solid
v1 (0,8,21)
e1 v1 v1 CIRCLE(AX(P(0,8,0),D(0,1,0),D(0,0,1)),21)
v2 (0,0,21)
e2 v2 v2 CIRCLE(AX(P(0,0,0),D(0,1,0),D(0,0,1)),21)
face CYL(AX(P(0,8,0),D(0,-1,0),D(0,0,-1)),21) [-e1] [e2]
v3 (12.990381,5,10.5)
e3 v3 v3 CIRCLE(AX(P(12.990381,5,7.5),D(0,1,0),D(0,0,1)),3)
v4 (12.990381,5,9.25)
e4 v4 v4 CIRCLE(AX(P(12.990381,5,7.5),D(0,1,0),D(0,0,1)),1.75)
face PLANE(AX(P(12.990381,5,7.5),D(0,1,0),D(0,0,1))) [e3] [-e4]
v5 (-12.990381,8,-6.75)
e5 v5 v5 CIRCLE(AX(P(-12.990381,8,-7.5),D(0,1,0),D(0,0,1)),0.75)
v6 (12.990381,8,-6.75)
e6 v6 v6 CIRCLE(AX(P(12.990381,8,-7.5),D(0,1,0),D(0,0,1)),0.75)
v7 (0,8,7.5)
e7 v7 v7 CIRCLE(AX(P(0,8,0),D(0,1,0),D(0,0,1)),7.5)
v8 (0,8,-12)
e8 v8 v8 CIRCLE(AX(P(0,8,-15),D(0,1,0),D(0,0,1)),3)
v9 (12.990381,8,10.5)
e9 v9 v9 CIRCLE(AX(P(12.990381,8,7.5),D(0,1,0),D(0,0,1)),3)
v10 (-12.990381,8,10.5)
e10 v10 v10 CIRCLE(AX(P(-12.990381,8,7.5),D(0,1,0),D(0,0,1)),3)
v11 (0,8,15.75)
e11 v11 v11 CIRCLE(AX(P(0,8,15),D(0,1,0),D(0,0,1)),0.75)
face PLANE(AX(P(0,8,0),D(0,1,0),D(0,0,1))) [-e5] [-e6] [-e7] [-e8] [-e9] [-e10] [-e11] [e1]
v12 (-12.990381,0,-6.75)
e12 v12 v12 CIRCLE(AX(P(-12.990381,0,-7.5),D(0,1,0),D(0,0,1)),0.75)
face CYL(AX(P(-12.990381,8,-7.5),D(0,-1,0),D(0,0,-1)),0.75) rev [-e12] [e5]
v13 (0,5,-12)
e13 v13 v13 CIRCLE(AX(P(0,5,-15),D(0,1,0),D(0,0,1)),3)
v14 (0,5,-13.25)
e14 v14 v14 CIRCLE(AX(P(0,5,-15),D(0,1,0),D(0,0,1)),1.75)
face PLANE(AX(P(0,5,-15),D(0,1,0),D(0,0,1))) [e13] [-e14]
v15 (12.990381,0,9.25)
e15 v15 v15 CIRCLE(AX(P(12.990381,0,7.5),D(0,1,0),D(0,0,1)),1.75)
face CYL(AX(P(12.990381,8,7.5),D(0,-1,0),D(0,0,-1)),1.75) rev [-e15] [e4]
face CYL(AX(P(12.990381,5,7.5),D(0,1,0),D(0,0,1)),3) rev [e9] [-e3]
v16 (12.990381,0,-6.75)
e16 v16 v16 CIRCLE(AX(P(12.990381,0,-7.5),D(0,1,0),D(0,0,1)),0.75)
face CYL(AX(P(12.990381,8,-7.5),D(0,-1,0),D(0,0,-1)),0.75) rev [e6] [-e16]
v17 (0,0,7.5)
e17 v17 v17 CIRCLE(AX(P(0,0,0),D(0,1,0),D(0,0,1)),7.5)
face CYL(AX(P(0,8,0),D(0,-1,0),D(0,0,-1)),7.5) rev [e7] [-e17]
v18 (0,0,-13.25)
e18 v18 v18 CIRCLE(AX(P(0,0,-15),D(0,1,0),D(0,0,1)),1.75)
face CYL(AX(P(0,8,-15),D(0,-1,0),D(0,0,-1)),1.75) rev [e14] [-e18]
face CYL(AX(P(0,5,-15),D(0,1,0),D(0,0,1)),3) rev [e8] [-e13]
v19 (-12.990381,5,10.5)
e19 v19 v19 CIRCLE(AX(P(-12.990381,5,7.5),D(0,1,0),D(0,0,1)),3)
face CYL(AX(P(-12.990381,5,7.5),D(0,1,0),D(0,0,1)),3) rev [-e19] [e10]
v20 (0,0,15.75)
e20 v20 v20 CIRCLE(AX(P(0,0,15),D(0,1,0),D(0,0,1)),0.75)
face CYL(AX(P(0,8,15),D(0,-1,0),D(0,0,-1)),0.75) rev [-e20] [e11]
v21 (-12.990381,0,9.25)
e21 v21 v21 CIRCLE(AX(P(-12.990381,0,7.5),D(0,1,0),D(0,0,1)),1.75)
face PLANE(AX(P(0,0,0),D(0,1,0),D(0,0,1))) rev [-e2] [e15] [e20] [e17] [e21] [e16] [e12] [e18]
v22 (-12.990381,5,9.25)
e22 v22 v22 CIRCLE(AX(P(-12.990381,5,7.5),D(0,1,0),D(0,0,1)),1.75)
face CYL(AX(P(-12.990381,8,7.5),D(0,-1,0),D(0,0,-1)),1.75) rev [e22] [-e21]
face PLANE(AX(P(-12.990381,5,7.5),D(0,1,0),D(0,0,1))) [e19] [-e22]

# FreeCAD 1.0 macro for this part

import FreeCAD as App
import Part
import Sketcher
from FreeCAD import Vector
Q = App.Units.Quantity

doc = App.newDocument("Part")
body = doc.addObject("PartDesign::Body", "Body")

# Sketch on XZ plane
sketch1 = doc.addObject("Sketcher::SketchObject", "Sketch")
body.addObject(sketch1)
sketch1.AttachmentSupport = (doc.XZ_Plane, [""])
sketch1.MapMode = "FlatFace"
sketch1.addGeometry([
    Part.Circle(Vector(0, 0, 0), Vector(0, 0, 1), 21),  # 0
    Part.Circle(Vector(-13, -7.5, 0), Vector(0, 0, 1), 0.8),  # 1
    Part.Circle(Vector(0, -15, 0), Vector(0, 0, 1), 1.8),  # 2
    Part.Circle(Vector(-13, 7.5, 0), Vector(0, 0, 1), 1.8),  # 3
    Part.Circle(Vector(13, -7.5, 0), Vector(0, 0, 1), 0.8),  # 4
    Part.Circle(Vector(0, 0, 0), Vector(0, 0, 1), 7.5),  # 5
    Part.Circle(Vector(0, 15, 0), Vector(0, 0, 1), 0.8),  # 6
    Part.Circle(Vector(13, 7.5, 0), Vector(0, 0, 1), 1.8),  # 7
], False)
sketch1.addConstraint([
    Sketcher.Constraint("Coincident", 0, 3, -1, 1),
    Sketcher.Constraint("Coincident", 5, 3, -1, 1),
    Sketcher.Constraint("Equal", 2, 3),
    Sketcher.Constraint("Equal", 1, 4),
    Sketcher.Constraint("Equal", 4, 6),
    Sketcher.Constraint("Equal", 3, 7),
    Sketcher.Constraint("Symmetric", 3, 3, 4, 3, -1, 1),
    Sketcher.Constraint("Symmetric", 2, 3, 6, 3, -1, 1),
    Sketcher.Constraint("Symmetric", 1, 3, 7, 3, -1, 1),
    Sketcher.Constraint("Symmetric", 1, 3, 4, 3, -2),
    Sketcher.Constraint("PointOnObject", 2, 3, -2),
    Sketcher.Constraint("Diameter", 0, Q("42 mm")),
    Sketcher.Constraint("Diameter", 5, Q("15 mm")),
    Sketcher.Constraint("Diameter", 1, Q("1.5 mm")),
    Sketcher.Constraint("Diameter", 2, Q("3.5 mm")),
    Sketcher.Constraint("DistanceY", 2, 3, -1, 1, Q("15 mm")),
    Sketcher.Constraint("DistanceY", 1, 3, 3, 3, Q("15 mm")),
    Sketcher.Constraint("DistanceX", 1, 3, -1, 1, Q("12.990381 mm")),
])
pad1 = doc.addObject("PartDesign::Pad", "Pad")
body.addObject(pad1)
pad1.Profile = sketch1
pad1.Length = 8
pad1.Reversed = True

# Sketch on XZ plane
sketch2 = doc.addObject("Sketcher::SketchObject", "Sketch001")
body.addObject(sketch2)
sketch2.AttachmentSupport = (doc.XZ_Plane, [""])
sketch2.MapMode = "FlatFace"
sketch2.AttachmentOffset = App.Placement(Vector(0, 0, -8), App.Rotation())
sketch2.addGeometry([
    Part.Circle(Vector(0, -15, 0), Vector(0, 0, 1), 3),
    Part.Circle(Vector(13, 7.5, 0), Vector(0, 0, 1), 3),
    Part.Circle(Vector(-13, 7.5, 0), Vector(0, 0, 1), 3),
], False)
sketch2.addConstraint([
    Sketcher.Constraint("Equal", 0, 1),
    Sketcher.Constraint("Equal", 1, 2),
    Sketcher.Constraint("Symmetric", 1, 3, 2, 3, -2),
    Sketcher.Constraint("PointOnObject", 0, 3, -2),
    Sketcher.Constraint("Diameter", 0, Q("6 mm")),
    Sketcher.Constraint("DistanceY", 0, 3, -1, 1, Q("15 mm")),
    Sketcher.Constraint("DistanceY", -1, 1, 1, 3, Q("7.5 mm")),
    Sketcher.Constraint("DistanceX", -1, 1, 1, 3, Q("12.990381 mm")),
])
pocket1 = doc.addObject("PartDesign::Pocket", "Pocket")
body.addObject(pocket1)
pocket1.Profile = sketch2
pocket1.Length = 3
pocket1.Reversed = True

doc.recompute()
